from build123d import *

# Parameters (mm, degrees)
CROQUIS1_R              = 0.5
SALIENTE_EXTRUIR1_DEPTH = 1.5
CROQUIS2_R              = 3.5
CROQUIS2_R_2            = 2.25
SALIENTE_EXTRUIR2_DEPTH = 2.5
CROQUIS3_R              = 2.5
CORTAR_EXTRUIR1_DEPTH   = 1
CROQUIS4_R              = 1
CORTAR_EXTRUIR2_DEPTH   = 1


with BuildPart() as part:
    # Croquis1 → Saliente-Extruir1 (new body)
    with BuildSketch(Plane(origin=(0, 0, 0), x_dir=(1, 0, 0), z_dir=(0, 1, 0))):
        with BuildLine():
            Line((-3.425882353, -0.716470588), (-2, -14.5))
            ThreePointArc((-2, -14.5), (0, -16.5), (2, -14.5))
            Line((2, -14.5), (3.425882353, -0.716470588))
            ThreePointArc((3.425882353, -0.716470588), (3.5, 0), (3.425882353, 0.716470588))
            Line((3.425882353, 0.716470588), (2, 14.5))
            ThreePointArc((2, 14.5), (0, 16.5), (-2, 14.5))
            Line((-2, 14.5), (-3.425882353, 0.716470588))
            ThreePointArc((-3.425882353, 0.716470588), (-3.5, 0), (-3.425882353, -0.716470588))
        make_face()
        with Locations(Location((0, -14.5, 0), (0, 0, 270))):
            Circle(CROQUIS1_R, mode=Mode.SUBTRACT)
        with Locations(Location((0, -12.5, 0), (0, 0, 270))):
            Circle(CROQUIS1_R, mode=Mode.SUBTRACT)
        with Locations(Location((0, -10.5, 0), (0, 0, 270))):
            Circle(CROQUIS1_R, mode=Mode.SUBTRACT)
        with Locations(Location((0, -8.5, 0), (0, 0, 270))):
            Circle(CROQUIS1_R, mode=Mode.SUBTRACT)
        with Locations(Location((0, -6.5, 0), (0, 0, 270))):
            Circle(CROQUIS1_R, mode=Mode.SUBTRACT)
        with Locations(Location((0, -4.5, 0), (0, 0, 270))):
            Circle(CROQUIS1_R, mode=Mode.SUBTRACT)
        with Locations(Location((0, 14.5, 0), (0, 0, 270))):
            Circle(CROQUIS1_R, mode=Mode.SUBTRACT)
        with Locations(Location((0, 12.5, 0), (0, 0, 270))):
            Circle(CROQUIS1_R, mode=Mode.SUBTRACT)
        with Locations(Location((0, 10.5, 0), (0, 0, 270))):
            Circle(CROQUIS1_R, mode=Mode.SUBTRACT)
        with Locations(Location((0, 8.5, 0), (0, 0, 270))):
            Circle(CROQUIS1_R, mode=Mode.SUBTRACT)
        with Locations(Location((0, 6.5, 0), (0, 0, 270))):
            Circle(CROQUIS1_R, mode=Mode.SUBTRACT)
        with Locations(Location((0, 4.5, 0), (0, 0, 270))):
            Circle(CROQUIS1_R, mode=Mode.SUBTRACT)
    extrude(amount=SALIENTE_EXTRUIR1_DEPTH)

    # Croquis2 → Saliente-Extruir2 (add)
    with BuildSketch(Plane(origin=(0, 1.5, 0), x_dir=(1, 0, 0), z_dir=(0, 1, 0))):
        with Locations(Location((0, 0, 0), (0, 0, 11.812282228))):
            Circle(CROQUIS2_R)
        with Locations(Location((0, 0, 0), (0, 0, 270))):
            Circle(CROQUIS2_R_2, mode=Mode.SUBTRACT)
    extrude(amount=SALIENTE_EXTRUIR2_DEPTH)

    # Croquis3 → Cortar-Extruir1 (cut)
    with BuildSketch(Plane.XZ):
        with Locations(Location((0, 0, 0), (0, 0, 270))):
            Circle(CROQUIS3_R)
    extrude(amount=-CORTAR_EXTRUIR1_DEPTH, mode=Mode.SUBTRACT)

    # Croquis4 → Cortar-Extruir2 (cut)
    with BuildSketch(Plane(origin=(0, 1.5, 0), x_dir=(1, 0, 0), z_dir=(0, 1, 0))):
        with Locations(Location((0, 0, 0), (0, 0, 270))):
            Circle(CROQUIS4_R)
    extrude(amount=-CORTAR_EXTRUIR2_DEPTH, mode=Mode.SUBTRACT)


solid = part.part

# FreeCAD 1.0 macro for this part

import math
import FreeCAD as App
import Part
import Sketcher

doc = App.newDocument("Part")
body = doc.addObject("PartDesign::Body", "Body")

# Sketch on XZ plane
sketch1 = body.newObject("Sketcher::SketchObject", "Sketch")
sketch1.AttachmentSupport = (doc.getObject("XZ_Plane"), [""])
sketch1.MapMode = "FlatFace"
sketch1.addGeometry(Part.LineSegment(App.Vector(-3.4, 0.7, 0), App.Vector(-2, 14.5, 0)), False)
sketch1.addGeometry(Part.ArcOfCircle(Part.Circle(App.Vector(0, 14.5, 0), App.Vector(0, 0, 1), 2), math.radians(0), math.radians(180)), False)
sketch1.addGeometry(Part.LineSegment(App.Vector(2, 14.5, 0), App.Vector(3.4, 0.7, 0)), False)
sketch1.addGeometry(Part.ArcOfCircle(Part.Circle(App.Vector(0, 0, 0), App.Vector(0, 0, 1), 3.5), math.radians(-12), math.radians(12)), False)
sketch1.addGeometry(Part.LineSegment(App.Vector(3.4, -0.7, 0), App.Vector(2, -14.5, 0)), False)
sketch1.addGeometry(Part.ArcOfCircle(Part.Circle(App.Vector(0, -14.5, 0), App.Vector(0, 0, 1), 2), math.radians(180), math.radians(360)), False)
sketch1.addGeometry(Part.LineSegment(App.Vector(-2, -14.5, 0), App.Vector(-3.4, -0.7, 0)), False)
sketch1.addGeometry(Part.ArcOfCircle(Part.Circle(App.Vector(0, 0, 0), App.Vector(0, 0, 1), 3.5), math.radians(168), math.radians(192)), False)
sketch1.addGeometry(Part.Circle(App.Vector(0, 14.5, 0), App.Vector(0, 0, 1), 0.5), False)
sketch1.addGeometry(Part.Circle(App.Vector(0, 12.5, 0), App.Vector(0, 0, 1), 0.5), False)
sketch1.addGeometry(Part.Circle(App.Vector(0, 10.5, 0), App.Vector(0, 0, 1), 0.5), False)
sketch1.addGeometry(Part.Circle(App.Vector(0, 8.5, 0), App.Vector(0, 0, 1), 0.5), False)
sketch1.addGeometry(Part.Circle(App.Vector(0, 6.5, 0), App.Vector(0, 0, 1), 0.5), False)
sketch1.addGeometry(Part.Circle(App.Vector(0, 4.5, 0), App.Vector(0, 0, 1), 0.5), False)
sketch1.addGeometry(Part.Circle(App.Vector(0, -4.5, 0), App.Vector(0, 0, 1), 0.5), False)
sketch1.addGeometry(Part.Circle(App.Vector(0, -6.5, 0), App.Vector(0, 0, 1), 0.5), False)
sketch1.addGeometry(Part.Circle(App.Vector(0, -8.5, 0), App.Vector(0, 0, 1), 0.5), False)
sketch1.addGeometry(Part.Circle(App.Vector(0, -10.5, 0), App.Vector(0, 0, 1), 0.5), False)
sketch1.addGeometry(Part.Circle(App.Vector(0, -12.5, 0), App.Vector(0, 0, 1), 0.5), False)
sketch1.addGeometry(Part.Circle(App.Vector(0, -14.5, 0), App.Vector(0, 0, 1), 0.5), False)
sketch1.addConstraint(Sketcher.Constraint("Coincident", 0, 2, 1, 2))
sketch1.addConstraint(Sketcher.Constraint("Coincident", 1, 1, 2, 1))
sketch1.addConstraint(Sketcher.Constraint("Coincident", 2, 2, 3, 2))
sketch1.addConstraint(Sketcher.Constraint("Coincident", 3, 1, 4, 1))
sketch1.addConstraint(Sketcher.Constraint("Coincident", 4, 2, 5, 2))
sketch1.addConstraint(Sketcher.Constraint("Coincident", 5, 1, 6, 1))
sketch1.addConstraint(Sketcher.Constraint("Coincident", 6, 2, 7, 2))
sketch1.addConstraint(Sketcher.Constraint("Coincident", 7, 1, 0, 1))
sketch1.addConstraint(Sketcher.Constraint("Coincident", 3, 3, -1, 1))
sketch1.addConstraint(Sketcher.Constraint("Coincident", 7, 3, -1, 1))
sketch1.addConstraint(Sketcher.Constraint("Coincident", 8, 3, 1, 3))
sketch1.addConstraint(Sketcher.Constraint("Coincident", 19, 3, 5, 3))
sketch1.addConstraint(Sketcher.Constraint("Equal", 1, 5))
sketch1.addConstraint(Sketcher.Constraint("Equal", 3, 7))
sketch1.addConstraint(Sketcher.Constraint("Equal", 8, 9))
sketch1.addConstraint(Sketcher.Constraint("Equal", 9, 10))
sketch1.addConstraint(Sketcher.Constraint("Equal", 10, 11))
sketch1.addConstraint(Sketcher.Constraint("Equal", 11, 12))
sketch1.addConstraint(Sketcher.Constraint("Equal", 12, 13))
sketch1.addConstraint(Sketcher.Constraint("Equal", 13, 14))
sketch1.addConstraint(Sketcher.Constraint("Equal", 14, 15))
sketch1.addConstraint(Sketcher.Constraint("Equal", 15, 16))
sketch1.addConstraint(Sketcher.Constraint("Equal", 16, 17))
sketch1.addConstraint(Sketcher.Constraint("Equal", 17, 18))
sketch1.addConstraint(Sketcher.Constraint("Equal", 18, 19))
sketch1.addConstraint(Sketcher.Constraint("Symmetric", 1, 3, 5, 3, -1, 1))
sketch1.addConstraint(Sketcher.Constraint("Symmetric", 13, 3, 14, 3, -1, 1))
sketch1.addConstraint(Sketcher.Constraint("Symmetric", 12, 3, 15, 3, -1, 1))
sketch1.addConstraint(Sketcher.Constraint("Symmetric", 11, 3, 16, 3, -1, 1))
sketch1.addConstraint(Sketcher.Constraint("Symmetric", 10, 3, 17, 3, -1, 1))
sketch1.addConstraint(Sketcher.Constraint("Symmetric", 9, 3, 18, 3, -1, 1))
sketch1.addConstraint(Sketcher.Constraint("Symmetric", 0, 2, 1, 1, -2))
sketch1.addConstraint(Sketcher.Constraint("PointOnObject", 9, 3, -2))
sketch1.addConstraint(Sketcher.Constraint("PointOnObject", 10, 3, -2))
sketch1.addConstraint(Sketcher.Constraint("PointOnObject", 11, 3, -2))
sketch1.addConstraint(Sketcher.Constraint("PointOnObject", 12, 3, -2))
sketch1.addConstraint(Sketcher.Constraint("PointOnObject", 13, 3, -2))
sketch1.addConstraint(Sketcher.Constraint("Parallel", 0, 4))
sketch1.addConstraint(Sketcher.Constraint("Parallel", 2, 6))
sketch1.addConstraint(Sketcher.Constraint("Horizontal", 8, 3, 0, 2))
sketch1.addConstraint(Sketcher.Constraint("Horizontal", 19, 3, 4, 2))
sketch1.addConstraint(Sketcher.Constraint("Horizontal", 4, 2, 5, 1))
sketch1.addConstraint(Sketcher.Constraint("Horizontal", 3, 1, 6, 2))
sketch1.addConstraint(Sketcher.Constraint("Diameter", 8, 1.0))
sketch1.addConstraint(Sketcher.Constraint("Radius", 1, 2.0))
sketch1.addConstraint(Sketcher.Constraint("Radius", 3, 3.5))
sketch1.addConstraint(Sketcher.Constraint("DistanceY", 5, 3, 1, 3, 29.0))
sketch1.addConstraint(Sketcher.Constraint("DistanceY", 9, 3, 1, 3, 2.0))
sketch1.addConstraint(Sketcher.Constraint("DistanceY", 10, 3, 9, 3, 2.0))
sketch1.addConstraint(Sketcher.Constraint("DistanceY", 11, 3, 10, 3, 2.0))
sketch1.addConstraint(Sketcher.Constraint("DistanceY", 12, 3, 11, 3, 2.0))
sketch1.addConstraint(Sketcher.Constraint("DistanceY", 13, 3, 12, 3, 2.0))
sketch1.addConstraint(Sketcher.Constraint("DistanceY", -1, 1, 2, 2, 0.716471))
pad1 = body.newObject("PartDesign::Pad", "Pad")
pad1.Profile = sketch1
pad1.Length = 1.5
pad1.Reversed = True

# Sketch on XZ plane
sketch2 = body.newObject("Sketcher::SketchObject", "Sketch001")
sketch2.AttachmentSupport = (doc.getObject("XZ_Plane"), [""])
sketch2.MapMode = "FlatFace"
sketch2.AttachmentOffset = App.Placement(App.Vector(0, 0, -1.5), App.Rotation())
sketch2.addGeometry(Part.Circle(App.Vector(0, 0, 0), App.Vector(0, 0, 1), 3.5), False)
sketch2.addGeometry(Part.Circle(App.Vector(0, 0, 0), App.Vector(0, 0, 1), 2.2), False)
sketch2.addConstraint(Sketcher.Constraint("Coincident", 0, 3, -1, 1))
sketch2.addConstraint(Sketcher.Constraint("Coincident", 1, 3, -1, 1))
sketch2.addConstraint(Sketcher.Constraint("Diameter", 0, 7.0))
sketch2.addConstraint(Sketcher.Constraint("Diameter", 1, 4.5))
pad2 = body.newObject("PartDesign::Pad", "Pad001")
pad2.Profile = sketch2
pad2.Length = 2.5
pad2.Reversed = True

# Sketch on XZ plane
sketch3 = body.newObject("Sketcher::SketchObject", "Sketch002")
sketch3.AttachmentSupport = (doc.getObject("XZ_Plane"), [""])
sketch3.MapMode = "FlatFace"
sketch3.addGeometry(Part.Circle(App.Vector(0, 0, 0), App.Vector(0, 0, 1), 2.5), False)
sketch3.addConstraint(Sketcher.Constraint("Coincident", 0, 3, -1, 1))
sketch3.addConstraint(Sketcher.Constraint("Diameter", 0, 5.0))
pocket1 = body.newObject("PartDesign::Pocket", "Pocket")
pocket1.Profile = sketch3
pocket1.Length = 1

# Sketch on XZ plane
sketch4 = body.newObject("Sketcher::SketchObject", "Sketch003")
sketch4.AttachmentSupport = (doc.getObject("XZ_Plane"), [""])
sketch4.MapMode = "FlatFace"
sketch4.AttachmentOffset = App.Placement(App.Vector(0, 0, -1.5), App.Rotation())
sketch4.addGeometry(Part.Circle(App.Vector(0, 0, 0), App.Vector(0, 0, 1), 1), False)
sketch4.addConstraint(Sketcher.Constraint("Coincident", 0, 3, -1, 1))
sketch4.addConstraint(Sketcher.Constraint("Diameter", 0, 2.0))
pocket2 = body.newObject("PartDesign::Pocket", "Pocket001")
pocket2.Profile = sketch4
pocket2.Length = 1
pocket2.Reversed = True

doc.recompute()
